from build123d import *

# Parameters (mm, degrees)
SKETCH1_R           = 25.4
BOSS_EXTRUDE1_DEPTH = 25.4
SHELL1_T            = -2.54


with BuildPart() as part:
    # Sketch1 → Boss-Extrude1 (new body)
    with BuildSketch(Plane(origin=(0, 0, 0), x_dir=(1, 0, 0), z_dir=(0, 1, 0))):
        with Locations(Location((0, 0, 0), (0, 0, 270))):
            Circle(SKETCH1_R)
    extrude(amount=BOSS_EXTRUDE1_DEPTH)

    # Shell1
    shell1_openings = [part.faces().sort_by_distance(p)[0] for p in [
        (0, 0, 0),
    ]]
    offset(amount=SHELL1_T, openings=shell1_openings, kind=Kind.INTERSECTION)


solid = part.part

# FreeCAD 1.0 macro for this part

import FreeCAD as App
import Part
import Sketcher
Q = App.Units.Quantity


def faces_at(feature, points):
    """Names of the faces that lie closest to the given points."""
    faces = feature.Shape.Faces
    near = lambda p: min(range(len(faces)), key=lambda i: faces[i].distToShape(Part.Vertex(*p))[0])
    return sorted({f"Face{near(p) + 1}" for p in points})

doc = App.newDocument("Part")
params = doc.addObject("Spreadsheet::Sheet", "Params")
for row, (alias, value) in enumerate([
    ("sketch1_diameter", "2 in"),
    ("pad1_length", "1 in"),
    ("thickness_wall", "0.1 in"),
], start=1):
    params.set(f"A{row}", alias)
    params.set(f"B{row}", "=" + value)
    params.setAlias(f"B{row}", alias)

body = doc.addObject("PartDesign::Body", "Body")

# Sketch on XZ plane
sketch1 = body.newObject("Sketcher::SketchObject", "Sketch")
sketch1.AttachmentSupport = (doc.getObject("XZ_Plane"), [""])
sketch1.MapMode = "FlatFace"
sketch1.addGeometry(Part.Circle(App.Vector(0, 0, 0), App.Vector(0, 0, 1), 25), False)
sketch1.addConstraint(Sketcher.Constraint("Coincident", 0, 3, -1, 1))
sketch1.addConstraint(Sketcher.Constraint("Diameter", 0, Q("2 in")))
sketch1.setExpression("Constraints[1]", "Params.sketch1_diameter")
pad1 = body.newObject("PartDesign::Pad", "Pad")
pad1.Profile = sketch1
pad1.setExpression("Length", "Params.pad1_length")
pad1.Reversed = True
doc.recompute()

thickness = body.newObject("PartDesign::Thickness", "Thickness")
thickness.Base = (pad1, faces_at(pad1, [(0, 0, 0)]))
thickness.setExpression("Value", "Params.thickness_wall")
thickness.Reversed = True
thickness.Join = "Intersection"

doc.recompute()
